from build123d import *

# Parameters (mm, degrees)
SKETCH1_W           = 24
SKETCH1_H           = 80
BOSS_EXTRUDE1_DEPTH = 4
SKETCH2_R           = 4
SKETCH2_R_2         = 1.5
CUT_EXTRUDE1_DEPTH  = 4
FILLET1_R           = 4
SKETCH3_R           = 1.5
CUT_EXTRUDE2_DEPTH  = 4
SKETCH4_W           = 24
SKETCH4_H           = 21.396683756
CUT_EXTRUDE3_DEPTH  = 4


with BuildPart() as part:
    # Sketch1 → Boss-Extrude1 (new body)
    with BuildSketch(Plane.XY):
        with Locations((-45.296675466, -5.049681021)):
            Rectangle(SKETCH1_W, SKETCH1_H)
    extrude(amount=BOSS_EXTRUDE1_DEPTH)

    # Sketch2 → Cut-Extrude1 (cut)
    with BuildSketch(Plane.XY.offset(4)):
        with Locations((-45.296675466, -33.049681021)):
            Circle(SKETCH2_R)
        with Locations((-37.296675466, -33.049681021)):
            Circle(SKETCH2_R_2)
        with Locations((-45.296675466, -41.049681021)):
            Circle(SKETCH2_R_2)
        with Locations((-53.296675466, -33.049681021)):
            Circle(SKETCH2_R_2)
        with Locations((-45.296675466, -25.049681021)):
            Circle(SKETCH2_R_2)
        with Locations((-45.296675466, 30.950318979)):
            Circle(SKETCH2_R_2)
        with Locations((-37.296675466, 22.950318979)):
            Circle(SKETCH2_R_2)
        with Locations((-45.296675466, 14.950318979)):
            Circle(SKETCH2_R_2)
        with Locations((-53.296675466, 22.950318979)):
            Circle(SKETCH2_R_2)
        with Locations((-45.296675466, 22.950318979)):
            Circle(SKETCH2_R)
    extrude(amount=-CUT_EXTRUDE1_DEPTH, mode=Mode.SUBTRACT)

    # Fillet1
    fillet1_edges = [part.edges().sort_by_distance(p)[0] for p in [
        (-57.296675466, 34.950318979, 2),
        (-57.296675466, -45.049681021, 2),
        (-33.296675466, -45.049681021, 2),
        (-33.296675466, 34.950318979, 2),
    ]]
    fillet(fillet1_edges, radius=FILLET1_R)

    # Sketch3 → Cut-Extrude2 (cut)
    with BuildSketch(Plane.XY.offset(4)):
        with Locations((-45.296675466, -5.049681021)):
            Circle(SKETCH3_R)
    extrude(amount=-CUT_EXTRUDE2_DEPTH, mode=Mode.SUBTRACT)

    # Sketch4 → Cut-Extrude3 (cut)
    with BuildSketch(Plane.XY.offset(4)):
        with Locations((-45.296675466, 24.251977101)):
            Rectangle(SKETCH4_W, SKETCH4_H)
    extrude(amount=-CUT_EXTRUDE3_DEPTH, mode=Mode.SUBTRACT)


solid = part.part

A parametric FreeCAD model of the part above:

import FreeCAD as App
import Part
import Sketcher
from FreeCAD import Vector
Q = App.Units.Quantity


def edges_at(feature, points):
    """Names of the edges that pass closest to the given points."""
    edges = feature.Shape.Edges
    near = lambda p: min(range(len(edges)), key=lambda i: edges[i].distToShape(Part.Vertex(*p))[0])
    return sorted({f"Edge{near(p) + 1}" for p in points})


def add_polygon(sketch, points):
    """Adds a closed chain of lines whose ends are joined by coincident constraints."""
    first, n = sketch.GeometryCount, len(points)
    for a, b in zip(points, points[1:] + points[:1]):
        sketch.addGeometry(Part.LineSegment(App.Vector(*a, 0), App.Vector(*b, 0)), False)
    for i in range(n):
        sketch.addConstraint(Sketcher.Constraint("Coincident", first + i, 2, first + (i + 1) % n, 1))

doc = App.newDocument("Part")
params = doc.addObject("Spreadsheet::Sheet", "Params")
for row, (alias, value) in enumerate([
    ("sketch1_width", "24 mm"),
    ("sketch1_height", "80 mm"),
    ("pad1_length", "4 mm"),
    ("sketch2_diameter", "8 mm"),
    ("sketch2_diameter2", "3 mm"),
    ("pocket1_length", "4 mm"),
    ("fillet_radius", "4 mm"),
    ("sketch3_diameter", "3 mm"),
    ("pocket2_length", "4 mm"),
    ("sketch4_width", "24 mm"),
    ("pocket3_length", "4 mm"),
], start=1):
    params.set(f"A{row}", alias)
    params.set(f"B{row}", "=" + value)
    params.setAlias(f"B{row}", alias)

body = doc.addObject("PartDesign::Body", "Body")

sketch1 = body.newObject("Sketcher::SketchObject", "Sketch")
sketch1.AttachmentSupport = (doc.getObject("XY_Plane"), [""])
sketch1.MapMode = "FlatFace"
add_polygon(sketch1, [(-57, 35), (-57, -45), (-33, -45), (-33, 35)])
sketch1.addConstraint([
    Sketcher.Constraint("Vertical", 0),
    Sketcher.Constraint("Horizontal", 1),
    Sketcher.Constraint("Vertical", 2),
    Sketcher.Constraint("Horizontal", 3),
    Sketcher.Constraint("DistanceX", 1, 1, 1, 2, Q("24 mm")),
    Sketcher.Constraint("DistanceY", 0, 2, 0, 1, Q("80 mm")),
    Sketcher.Constraint("DistanceY", 0, 2, -1, 1, Q("45.049681 mm")),
    Sketcher.Constraint("DistanceX", 0, 2, -1, 1, Q("57.296675 mm")),
])
sketch1.setExpression("Constraints[8]", "Params.sketch1_width")
sketch1.setExpression("Constraints[9]", "Params.sketch1_height")
pad1 = body.newObject("PartDesign::Pad", "Pad")
pad1.Profile = sketch1
pad1.setExpression("Length", "Params.pad1_length")

sketch2 = body.newObject("Sketcher::SketchObject", "Sketch001")
sketch2.AttachmentSupport = (doc.getObject("XY_Plane"), [""])
sketch2.MapMode = "FlatFace"
sketch2.AttachmentOffset = App.Placement(Vector(0, 0, 4), App.Rotation())
sketch2.addGeometry([
    Part.Circle(Vector(-45.3, -33, 0), Vector(0, 0, 1), 4),
    Part.Circle(Vector(-37.3, -33, 0), Vector(0, 0, 1), 1.5),
    Part.Circle(Vector(-45.3, -41, 0), Vector(0, 0, 1), 1.5),
    Part.Circle(Vector(-53.3, -33, 0), Vector(0, 0, 1), 1.5),
    Part.Circle(Vector(-45.3, -25, 0), Vector(0, 0, 1), 1.5),
    Part.Circle(Vector(-45.3, 31, 0), Vector(0, 0, 1), 1.5),
    Part.Circle(Vector(-37.3, 23, 0), Vector(0, 0, 1), 1.5),
    Part.Circle(Vector(-45.3, 15, 0), Vector(0, 0, 1), 1.5),
    Part.Circle(Vector(-53.3, 23, 0), Vector(0, 0, 1), 1.5),
    Part.Circle(Vector(-45.3, 23, 0), Vector(0, 0, 1), 4),
], False)
sketch2.addConstraint([
    Sketcher.Constraint("Equal", 1, 2),
    Sketcher.Constraint("Equal", 2, 3),
    Sketcher.Constraint("Equal", 3, 4),
    Sketcher.Constraint("Equal", 4, 5),
    Sketcher.Constraint("Equal", 5, 6),
    Sketcher.Constraint("Equal", 6, 7),
    Sketcher.Constraint("Equal", 7, 8),
    Sketcher.Constraint("Equal", 0, 9),
    Sketcher.Constraint("Horizontal", 0, 3, 1, 3),
    Sketcher.Constraint("Horizontal", 1, 3, 3, 3),
    Sketcher.Constraint("Horizontal", 6, 3, 8, 3),
    Sketcher.Constraint("Horizontal", 8, 3, 9, 3),
    Sketcher.Constraint("Vertical", 0, 3, 2, 3),
    Sketcher.Constraint("Vertical", 2, 3, 4, 3),
    Sketcher.Constraint("Vertical", 4, 3, 5, 3),
    Sketcher.Constraint("Vertical", 1, 3, 6, 3),
    Sketcher.Constraint("Vertical", 5, 3, 7, 3),
    Sketcher.Constraint("Vertical", 3, 3, 8, 3),
    Sketcher.Constraint("Vertical", 7, 3, 9, 3),
    Sketcher.Constraint("Diameter", 0, Q("8 mm")),
    Sketcher.Constraint("Diameter", 1, Q("3 mm")),
    Sketcher.Constraint("DistanceX", 0, 3, 1, 3, Q("8 mm")),
    Sketcher.Constraint("DistanceY", 2, 3, 0, 3, Q("8 mm")),
    Sketcher.Constraint("DistanceX", 3, 3, 0, 3, Q("8 mm")),
    Sketcher.Constraint("DistanceY", 0, 3, 4, 3, Q("8 mm")),
    Sketcher.Constraint("DistanceY", 4, 3, 5, 3, Q("56 mm")),
    Sketcher.Constraint("DistanceY", 6, 3, 5, 3, Q("8 mm")),
    Sketcher.Constraint("DistanceY", 7, 3, 6, 3, Q("8 mm")),
    Sketcher.Constraint("DistanceY", 0, 3, -1, 1, Q("33.049681 mm")),
    Sketcher.Constraint("DistanceX", 0, 3, -1, 1, Q("45.296675 mm")),
])
sketch2.setExpression("Constraints[19]", "Params.sketch2_diameter")
sketch2.setExpression("Constraints[20]", "Params.sketch2_diameter2")
pocket1 = body.newObject("PartDesign::Pocket", "Pocket")
pocket1.Profile = sketch2
pocket1.setExpression("Length", "Params.pocket1_length")
doc.recompute()

fillet = body.newObject("PartDesign::Fillet", "Fillet")
fillet.Base = (pocket1, edges_at(pocket1, [
    (-57.297, 34.95, 2),
    (-57.297, -45.05, 2),
    (-33.297, -45.05, 2),
    (-33.297, 34.95, 2),
]))
fillet.setExpression("Radius", "Params.fillet_radius")

sketch3 = body.newObject("Sketcher::SketchObject", "Sketch002")
sketch3.AttachmentSupport = (doc.getObject("XY_Plane"), [""])
sketch3.MapMode = "FlatFace"
sketch3.AttachmentOffset = App.Placement(Vector(0, 0, 4), App.Rotation())
sketch3.addGeometry(Part.Circle(Vector(-45.3, -5, 0), Vector(0, 0, 1), 1.5), False)
sketch3.addConstraint([
    Sketcher.Constraint("Diameter", 0, Q("3 mm")),
    Sketcher.Constraint("DistanceY", 0, 3, -1, 1, Q("5.049681 mm")),
    Sketcher.Constraint("DistanceX", 0, 3, -1, 1, Q("45.296675 mm")),
])
sketch3.setExpression("Constraints[0]", "Params.sketch3_diameter")
pocket2 = body.newObject("PartDesign::Pocket", "Pocket001")
pocket2.Profile = sketch3
pocket2.setExpression("Length", "Params.pocket2_length")

sketch4 = body.newObject("Sketcher::SketchObject", "Sketch003")
sketch4.AttachmentSupport = (doc.getObject("XY_Plane"), [""])
sketch4.MapMode = "FlatFace"
sketch4.AttachmentOffset = App.Placement(Vector(0, 0, 4), App.Rotation())
add_polygon(sketch4, [(-57, 35), (-57, 14), (-33, 14), (-33, 35)])
sketch4.addConstraint([
    Sketcher.Constraint("Vertical", 0),
    Sketcher.Constraint("Horizontal", 1),
    Sketcher.Constraint("Vertical", 2),
    Sketcher.Constraint("Horizontal", 3),
    Sketcher.Constraint("DistanceX", 1, 1, 1, 2, Q("24 mm")),
    Sketcher.Constraint("DistanceY", 0, 2, 0, 1, Q("21.396684 mm")),
    Sketcher.Constraint("DistanceY", -1, 1, 2, 2, Q("34.950319 mm")),
    Sketcher.Constraint("DistanceX", 0, 2, -1, 1, Q("57.296675 mm")),
])
sketch4.setExpression("Constraints[8]", "Params.sketch4_width")
pocket3 = body.newObject("PartDesign::Pocket", "Pocket002")
pocket3.Profile = sketch4
pocket3.setExpression("Length", "Params.pocket3_length")

doc.recompute()
